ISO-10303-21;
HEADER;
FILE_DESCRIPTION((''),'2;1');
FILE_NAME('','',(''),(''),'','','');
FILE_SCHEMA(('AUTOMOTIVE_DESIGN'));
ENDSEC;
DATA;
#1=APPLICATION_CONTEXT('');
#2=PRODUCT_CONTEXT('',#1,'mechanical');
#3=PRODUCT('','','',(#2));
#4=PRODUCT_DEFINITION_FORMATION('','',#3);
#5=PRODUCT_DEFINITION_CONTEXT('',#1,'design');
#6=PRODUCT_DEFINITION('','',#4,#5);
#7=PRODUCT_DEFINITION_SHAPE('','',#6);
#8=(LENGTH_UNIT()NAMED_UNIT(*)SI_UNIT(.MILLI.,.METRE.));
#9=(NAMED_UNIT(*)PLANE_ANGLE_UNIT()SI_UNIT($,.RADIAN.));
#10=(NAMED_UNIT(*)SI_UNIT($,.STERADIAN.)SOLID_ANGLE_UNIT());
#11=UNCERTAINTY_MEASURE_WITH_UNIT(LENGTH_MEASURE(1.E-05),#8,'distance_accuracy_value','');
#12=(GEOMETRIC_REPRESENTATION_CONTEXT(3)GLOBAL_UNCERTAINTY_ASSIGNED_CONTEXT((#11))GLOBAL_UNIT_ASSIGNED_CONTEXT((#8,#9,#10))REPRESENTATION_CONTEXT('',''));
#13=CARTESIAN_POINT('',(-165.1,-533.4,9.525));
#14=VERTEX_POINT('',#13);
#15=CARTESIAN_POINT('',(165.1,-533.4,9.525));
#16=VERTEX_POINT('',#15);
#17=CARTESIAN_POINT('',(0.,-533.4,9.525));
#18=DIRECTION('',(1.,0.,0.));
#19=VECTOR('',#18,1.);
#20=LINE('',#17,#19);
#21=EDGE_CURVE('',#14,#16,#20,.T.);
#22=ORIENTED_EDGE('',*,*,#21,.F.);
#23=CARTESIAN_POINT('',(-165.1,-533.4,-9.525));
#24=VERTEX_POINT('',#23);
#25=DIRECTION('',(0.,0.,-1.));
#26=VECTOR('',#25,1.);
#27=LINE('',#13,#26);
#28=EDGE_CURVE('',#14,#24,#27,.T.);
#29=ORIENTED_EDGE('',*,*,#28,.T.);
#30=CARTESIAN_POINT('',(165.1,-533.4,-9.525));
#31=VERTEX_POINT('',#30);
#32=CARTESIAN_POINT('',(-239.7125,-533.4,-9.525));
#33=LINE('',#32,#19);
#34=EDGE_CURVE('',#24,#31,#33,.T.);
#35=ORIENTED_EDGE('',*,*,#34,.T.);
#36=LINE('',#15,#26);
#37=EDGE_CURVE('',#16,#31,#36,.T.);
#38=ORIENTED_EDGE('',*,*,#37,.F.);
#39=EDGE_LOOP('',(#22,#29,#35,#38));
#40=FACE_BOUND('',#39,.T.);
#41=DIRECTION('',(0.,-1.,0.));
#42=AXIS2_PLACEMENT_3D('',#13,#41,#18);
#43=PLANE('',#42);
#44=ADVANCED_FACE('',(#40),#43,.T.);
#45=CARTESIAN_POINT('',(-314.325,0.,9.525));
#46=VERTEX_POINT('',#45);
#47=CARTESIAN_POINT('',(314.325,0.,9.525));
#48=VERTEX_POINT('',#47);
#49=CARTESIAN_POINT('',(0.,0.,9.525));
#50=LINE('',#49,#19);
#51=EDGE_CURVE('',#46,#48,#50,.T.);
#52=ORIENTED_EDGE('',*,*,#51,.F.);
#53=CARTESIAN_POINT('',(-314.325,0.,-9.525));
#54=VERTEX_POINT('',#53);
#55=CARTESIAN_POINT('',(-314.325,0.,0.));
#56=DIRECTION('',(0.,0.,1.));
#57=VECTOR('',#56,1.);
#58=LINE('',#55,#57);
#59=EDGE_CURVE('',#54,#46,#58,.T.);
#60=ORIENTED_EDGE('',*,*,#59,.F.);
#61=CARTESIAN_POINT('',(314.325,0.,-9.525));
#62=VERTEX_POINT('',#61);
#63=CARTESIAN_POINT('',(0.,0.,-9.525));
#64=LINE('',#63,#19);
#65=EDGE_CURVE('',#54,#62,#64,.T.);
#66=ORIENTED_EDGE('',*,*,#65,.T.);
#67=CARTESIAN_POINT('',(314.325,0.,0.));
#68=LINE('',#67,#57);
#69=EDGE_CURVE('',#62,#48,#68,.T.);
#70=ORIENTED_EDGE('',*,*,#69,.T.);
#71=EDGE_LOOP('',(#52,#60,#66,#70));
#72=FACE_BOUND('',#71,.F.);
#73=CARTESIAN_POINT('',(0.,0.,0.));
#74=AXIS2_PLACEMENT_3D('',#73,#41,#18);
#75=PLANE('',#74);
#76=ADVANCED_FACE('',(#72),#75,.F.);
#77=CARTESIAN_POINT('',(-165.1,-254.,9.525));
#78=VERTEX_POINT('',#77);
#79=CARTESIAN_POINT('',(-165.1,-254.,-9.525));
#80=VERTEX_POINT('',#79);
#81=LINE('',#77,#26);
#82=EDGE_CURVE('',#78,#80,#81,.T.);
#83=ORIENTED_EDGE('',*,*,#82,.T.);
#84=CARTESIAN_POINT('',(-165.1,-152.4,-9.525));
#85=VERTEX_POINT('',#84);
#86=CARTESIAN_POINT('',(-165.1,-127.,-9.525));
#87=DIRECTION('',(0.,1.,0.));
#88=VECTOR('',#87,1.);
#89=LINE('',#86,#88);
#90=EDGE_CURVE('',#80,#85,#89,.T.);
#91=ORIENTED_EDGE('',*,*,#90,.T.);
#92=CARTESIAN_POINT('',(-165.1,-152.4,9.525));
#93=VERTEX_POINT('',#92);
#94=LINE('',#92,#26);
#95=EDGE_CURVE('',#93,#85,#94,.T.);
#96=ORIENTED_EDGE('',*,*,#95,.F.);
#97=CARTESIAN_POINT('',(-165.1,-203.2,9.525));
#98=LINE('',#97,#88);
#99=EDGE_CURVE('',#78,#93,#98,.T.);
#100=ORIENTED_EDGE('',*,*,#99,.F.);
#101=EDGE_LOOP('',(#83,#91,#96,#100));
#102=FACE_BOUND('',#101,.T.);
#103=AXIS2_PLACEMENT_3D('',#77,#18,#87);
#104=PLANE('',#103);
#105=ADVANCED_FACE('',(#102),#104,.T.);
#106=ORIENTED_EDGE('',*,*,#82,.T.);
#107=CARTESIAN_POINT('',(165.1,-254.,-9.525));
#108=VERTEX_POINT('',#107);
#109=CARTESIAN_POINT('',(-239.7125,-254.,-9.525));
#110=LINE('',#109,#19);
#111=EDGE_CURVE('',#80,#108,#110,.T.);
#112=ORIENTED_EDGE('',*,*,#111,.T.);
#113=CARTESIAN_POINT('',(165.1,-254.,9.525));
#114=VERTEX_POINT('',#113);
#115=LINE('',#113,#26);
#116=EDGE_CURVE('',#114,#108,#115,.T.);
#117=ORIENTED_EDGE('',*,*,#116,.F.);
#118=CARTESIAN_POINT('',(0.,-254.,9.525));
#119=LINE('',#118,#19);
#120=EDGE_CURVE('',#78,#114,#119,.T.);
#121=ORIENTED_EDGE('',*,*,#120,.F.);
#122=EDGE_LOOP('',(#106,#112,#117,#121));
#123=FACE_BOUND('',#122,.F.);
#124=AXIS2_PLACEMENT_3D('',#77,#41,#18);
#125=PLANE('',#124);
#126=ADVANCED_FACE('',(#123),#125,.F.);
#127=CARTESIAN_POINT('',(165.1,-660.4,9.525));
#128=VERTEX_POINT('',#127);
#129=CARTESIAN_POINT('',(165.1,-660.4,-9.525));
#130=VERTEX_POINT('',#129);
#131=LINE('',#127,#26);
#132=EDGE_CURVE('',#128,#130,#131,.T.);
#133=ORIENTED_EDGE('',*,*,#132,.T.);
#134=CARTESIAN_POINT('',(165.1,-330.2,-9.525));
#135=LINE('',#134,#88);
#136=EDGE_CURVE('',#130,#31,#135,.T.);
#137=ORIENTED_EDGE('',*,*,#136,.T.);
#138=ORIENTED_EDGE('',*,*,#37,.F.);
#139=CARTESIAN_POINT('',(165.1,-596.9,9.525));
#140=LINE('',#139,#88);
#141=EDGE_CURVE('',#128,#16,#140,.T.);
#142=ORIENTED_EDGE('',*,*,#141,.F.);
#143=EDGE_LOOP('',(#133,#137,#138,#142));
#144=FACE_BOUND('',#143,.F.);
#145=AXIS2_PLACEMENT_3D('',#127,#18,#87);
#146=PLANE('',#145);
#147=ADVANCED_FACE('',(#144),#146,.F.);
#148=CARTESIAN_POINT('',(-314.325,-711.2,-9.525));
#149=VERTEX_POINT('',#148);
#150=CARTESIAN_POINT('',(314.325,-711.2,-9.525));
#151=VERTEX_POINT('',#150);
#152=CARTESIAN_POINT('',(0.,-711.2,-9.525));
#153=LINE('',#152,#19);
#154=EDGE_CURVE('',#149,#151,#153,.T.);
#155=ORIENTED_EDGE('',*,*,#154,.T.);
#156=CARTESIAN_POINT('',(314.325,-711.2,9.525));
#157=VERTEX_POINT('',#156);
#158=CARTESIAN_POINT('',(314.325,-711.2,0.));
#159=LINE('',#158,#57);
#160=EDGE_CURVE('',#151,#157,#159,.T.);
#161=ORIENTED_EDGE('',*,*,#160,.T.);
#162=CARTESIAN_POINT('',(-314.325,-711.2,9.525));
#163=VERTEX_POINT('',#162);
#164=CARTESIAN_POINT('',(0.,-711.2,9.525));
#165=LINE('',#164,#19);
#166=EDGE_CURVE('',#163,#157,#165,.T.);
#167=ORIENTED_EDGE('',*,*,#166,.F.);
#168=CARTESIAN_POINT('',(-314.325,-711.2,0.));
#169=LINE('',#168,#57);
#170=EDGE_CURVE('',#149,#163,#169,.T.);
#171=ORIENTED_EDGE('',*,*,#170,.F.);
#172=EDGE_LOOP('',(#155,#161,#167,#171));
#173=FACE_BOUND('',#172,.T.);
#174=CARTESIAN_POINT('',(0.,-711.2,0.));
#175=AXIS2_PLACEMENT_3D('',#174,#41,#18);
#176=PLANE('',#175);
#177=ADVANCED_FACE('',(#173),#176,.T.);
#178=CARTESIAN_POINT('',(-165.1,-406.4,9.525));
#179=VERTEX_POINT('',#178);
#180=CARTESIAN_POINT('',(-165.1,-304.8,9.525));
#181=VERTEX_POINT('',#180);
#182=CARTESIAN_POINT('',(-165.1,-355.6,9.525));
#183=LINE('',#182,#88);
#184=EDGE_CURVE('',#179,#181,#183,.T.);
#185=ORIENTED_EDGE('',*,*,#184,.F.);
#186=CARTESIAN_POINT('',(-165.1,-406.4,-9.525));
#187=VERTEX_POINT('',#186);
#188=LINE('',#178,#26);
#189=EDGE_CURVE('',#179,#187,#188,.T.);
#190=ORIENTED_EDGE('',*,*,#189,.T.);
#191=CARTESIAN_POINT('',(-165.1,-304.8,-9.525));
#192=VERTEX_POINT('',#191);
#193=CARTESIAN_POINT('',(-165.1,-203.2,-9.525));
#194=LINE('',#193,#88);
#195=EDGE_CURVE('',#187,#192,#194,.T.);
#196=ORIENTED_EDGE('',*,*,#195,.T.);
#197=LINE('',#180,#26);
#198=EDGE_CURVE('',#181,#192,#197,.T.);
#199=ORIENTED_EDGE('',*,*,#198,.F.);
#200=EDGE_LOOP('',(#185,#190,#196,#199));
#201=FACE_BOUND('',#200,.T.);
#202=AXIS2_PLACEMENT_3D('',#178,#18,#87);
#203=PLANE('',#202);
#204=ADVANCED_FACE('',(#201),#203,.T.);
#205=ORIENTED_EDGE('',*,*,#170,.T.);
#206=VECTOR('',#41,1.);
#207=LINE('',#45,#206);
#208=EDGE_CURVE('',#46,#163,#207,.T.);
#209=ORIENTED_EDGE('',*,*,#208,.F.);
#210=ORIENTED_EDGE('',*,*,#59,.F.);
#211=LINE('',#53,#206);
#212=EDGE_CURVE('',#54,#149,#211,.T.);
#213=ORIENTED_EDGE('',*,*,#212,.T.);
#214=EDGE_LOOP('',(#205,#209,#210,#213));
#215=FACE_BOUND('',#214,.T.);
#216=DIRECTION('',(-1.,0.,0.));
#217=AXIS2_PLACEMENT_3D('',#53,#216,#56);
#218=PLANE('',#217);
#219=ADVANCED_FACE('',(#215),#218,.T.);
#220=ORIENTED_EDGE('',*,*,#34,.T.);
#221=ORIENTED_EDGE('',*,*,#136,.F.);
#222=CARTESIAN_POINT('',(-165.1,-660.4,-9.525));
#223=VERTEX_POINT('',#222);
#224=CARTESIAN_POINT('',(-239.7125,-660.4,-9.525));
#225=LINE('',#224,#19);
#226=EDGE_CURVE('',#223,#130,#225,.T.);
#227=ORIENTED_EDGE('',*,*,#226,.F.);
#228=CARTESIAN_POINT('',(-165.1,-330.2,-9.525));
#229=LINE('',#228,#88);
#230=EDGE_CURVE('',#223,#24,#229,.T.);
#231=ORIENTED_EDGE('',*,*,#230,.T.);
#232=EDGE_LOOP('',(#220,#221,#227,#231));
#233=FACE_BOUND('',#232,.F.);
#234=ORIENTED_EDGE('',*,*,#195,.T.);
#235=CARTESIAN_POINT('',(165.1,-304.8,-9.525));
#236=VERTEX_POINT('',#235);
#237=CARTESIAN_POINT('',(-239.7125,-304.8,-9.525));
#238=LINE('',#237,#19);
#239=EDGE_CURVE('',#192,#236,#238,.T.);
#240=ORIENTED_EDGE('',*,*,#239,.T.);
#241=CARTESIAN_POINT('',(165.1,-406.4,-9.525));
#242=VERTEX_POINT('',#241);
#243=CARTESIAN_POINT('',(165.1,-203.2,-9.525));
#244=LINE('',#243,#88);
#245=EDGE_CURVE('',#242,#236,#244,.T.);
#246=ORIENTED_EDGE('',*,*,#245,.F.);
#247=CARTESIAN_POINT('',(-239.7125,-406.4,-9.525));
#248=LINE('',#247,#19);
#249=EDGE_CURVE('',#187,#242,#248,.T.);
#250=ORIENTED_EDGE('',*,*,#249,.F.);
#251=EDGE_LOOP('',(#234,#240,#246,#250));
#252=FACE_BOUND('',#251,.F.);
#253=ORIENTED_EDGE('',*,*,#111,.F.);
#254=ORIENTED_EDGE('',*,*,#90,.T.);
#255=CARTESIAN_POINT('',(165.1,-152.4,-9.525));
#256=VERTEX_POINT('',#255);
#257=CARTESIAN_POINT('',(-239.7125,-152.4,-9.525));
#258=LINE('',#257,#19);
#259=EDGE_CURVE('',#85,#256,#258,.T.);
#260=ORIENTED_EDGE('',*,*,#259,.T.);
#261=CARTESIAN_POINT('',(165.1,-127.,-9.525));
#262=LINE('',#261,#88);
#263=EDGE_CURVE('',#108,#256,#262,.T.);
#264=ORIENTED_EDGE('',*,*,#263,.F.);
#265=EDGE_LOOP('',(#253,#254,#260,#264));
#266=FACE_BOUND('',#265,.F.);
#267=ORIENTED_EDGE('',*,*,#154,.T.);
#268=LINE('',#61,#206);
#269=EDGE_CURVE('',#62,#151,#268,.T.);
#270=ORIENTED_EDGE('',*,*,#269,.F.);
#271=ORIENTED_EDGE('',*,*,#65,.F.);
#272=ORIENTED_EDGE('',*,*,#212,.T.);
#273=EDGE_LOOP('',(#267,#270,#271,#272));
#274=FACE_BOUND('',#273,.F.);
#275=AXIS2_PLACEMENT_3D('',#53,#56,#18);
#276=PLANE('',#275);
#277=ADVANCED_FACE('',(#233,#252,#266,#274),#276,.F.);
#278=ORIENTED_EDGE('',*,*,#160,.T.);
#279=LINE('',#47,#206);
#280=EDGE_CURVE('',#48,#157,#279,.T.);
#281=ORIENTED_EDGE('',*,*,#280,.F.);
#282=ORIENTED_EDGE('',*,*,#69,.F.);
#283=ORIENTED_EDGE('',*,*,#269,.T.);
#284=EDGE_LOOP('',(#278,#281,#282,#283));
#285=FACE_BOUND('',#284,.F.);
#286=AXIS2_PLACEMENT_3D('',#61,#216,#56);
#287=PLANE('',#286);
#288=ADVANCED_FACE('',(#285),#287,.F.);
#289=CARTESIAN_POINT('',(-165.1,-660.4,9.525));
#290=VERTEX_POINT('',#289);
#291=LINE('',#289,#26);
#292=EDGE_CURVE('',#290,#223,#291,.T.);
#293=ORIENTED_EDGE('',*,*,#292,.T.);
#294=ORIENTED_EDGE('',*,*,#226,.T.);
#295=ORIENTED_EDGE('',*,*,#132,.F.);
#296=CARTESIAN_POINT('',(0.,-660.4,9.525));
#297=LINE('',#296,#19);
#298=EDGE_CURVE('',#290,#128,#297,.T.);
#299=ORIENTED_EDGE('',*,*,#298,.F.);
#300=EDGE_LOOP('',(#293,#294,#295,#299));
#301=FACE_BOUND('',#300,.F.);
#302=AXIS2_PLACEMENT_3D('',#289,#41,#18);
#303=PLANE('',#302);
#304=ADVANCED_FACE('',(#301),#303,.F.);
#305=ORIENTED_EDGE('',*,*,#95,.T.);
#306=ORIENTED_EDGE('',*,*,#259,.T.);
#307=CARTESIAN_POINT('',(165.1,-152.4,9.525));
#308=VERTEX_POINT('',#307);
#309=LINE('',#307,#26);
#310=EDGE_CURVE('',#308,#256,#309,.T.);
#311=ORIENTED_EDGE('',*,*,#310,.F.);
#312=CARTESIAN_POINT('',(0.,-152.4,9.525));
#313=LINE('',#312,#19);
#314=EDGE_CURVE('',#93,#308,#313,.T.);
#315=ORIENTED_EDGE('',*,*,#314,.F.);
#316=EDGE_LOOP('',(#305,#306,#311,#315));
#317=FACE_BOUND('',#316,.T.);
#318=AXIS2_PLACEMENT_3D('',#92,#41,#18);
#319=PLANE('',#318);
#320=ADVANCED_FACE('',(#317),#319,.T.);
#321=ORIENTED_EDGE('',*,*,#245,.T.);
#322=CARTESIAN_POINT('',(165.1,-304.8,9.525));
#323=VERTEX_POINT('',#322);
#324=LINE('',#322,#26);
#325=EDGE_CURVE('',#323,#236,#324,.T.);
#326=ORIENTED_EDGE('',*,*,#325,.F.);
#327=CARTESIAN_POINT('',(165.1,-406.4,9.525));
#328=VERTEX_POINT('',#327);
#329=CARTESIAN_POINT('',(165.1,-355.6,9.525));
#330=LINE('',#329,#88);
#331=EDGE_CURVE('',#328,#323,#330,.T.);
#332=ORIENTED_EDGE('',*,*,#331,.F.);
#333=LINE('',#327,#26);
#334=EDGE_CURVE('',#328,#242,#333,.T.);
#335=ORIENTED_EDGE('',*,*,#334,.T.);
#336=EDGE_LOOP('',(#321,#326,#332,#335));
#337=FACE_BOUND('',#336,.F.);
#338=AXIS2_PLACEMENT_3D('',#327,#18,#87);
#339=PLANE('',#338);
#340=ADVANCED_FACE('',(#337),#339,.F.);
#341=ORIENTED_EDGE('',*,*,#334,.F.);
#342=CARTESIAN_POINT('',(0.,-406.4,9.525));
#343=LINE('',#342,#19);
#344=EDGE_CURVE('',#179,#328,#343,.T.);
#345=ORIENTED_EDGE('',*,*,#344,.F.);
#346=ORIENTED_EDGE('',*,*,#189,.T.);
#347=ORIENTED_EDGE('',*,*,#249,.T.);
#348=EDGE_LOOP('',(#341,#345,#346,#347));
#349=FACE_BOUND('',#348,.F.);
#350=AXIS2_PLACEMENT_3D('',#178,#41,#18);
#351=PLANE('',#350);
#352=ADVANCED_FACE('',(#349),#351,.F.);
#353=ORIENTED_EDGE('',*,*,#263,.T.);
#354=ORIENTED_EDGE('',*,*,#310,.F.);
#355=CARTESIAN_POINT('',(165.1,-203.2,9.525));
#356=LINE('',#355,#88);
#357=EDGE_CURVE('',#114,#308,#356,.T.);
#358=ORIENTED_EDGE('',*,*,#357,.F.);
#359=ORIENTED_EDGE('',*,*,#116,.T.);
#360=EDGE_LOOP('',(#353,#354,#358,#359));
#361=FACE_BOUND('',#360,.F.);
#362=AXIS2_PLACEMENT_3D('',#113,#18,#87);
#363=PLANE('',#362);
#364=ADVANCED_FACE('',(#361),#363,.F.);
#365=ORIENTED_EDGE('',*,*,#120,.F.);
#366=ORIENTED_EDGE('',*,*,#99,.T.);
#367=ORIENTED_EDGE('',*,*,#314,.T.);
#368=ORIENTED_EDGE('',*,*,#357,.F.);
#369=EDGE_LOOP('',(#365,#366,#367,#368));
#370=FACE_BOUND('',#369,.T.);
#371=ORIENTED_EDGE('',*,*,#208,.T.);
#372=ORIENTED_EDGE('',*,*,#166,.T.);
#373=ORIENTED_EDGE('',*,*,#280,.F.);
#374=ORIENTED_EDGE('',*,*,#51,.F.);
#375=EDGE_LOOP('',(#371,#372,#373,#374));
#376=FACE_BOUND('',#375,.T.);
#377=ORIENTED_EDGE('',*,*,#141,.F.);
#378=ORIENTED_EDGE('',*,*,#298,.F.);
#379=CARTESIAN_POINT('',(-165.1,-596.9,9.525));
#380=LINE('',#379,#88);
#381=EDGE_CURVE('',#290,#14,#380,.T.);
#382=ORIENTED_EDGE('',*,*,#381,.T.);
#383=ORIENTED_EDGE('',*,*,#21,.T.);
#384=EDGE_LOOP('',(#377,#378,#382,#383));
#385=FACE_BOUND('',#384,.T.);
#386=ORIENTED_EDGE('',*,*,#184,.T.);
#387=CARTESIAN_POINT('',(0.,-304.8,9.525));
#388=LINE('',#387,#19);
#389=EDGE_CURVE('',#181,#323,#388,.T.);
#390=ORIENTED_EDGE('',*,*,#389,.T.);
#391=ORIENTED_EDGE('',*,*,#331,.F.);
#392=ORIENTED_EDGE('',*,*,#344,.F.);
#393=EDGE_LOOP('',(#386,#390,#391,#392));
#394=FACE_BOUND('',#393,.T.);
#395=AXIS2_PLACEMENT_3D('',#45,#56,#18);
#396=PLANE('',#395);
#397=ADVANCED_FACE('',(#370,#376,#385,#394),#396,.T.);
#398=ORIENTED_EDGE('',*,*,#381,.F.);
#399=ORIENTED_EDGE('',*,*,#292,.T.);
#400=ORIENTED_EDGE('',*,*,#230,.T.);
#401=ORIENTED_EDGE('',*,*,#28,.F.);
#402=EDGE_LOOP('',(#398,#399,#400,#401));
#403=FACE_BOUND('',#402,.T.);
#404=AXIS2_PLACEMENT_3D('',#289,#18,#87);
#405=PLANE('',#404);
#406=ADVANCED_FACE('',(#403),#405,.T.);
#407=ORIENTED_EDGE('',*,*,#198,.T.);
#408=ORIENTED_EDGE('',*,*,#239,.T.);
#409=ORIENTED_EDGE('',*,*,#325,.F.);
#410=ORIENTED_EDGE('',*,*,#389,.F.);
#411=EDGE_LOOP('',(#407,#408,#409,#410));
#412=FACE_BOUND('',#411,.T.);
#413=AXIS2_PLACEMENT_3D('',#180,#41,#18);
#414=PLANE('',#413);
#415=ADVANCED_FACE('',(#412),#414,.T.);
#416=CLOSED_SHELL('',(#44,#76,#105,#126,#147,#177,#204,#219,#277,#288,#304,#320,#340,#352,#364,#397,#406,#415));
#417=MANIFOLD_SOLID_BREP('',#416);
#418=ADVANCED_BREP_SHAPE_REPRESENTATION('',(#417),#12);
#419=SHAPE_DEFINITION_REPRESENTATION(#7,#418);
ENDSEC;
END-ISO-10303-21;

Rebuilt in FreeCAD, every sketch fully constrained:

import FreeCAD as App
import Part
import Sketcher
from FreeCAD import Vector
Q = App.Units.Quantity


def add_polygon(sketch, points):
    """Adds a closed chain of lines whose ends are joined by coincident constraints."""
    first, n = sketch.GeometryCount, len(points)
    for a, b in zip(points, points[1:] + points[:1]):
        sketch.addGeometry(Part.LineSegment(App.Vector(*a, 0), App.Vector(*b, 0)), False)
    for i in range(n):
        sketch.addConstraint(Sketcher.Constraint("Coincident", first + i, 2, first + (i + 1) % n, 1))

doc = App.newDocument("Part")
body = doc.addObject("PartDesign::Body", "Body")

# Sketch on XZ plane
sketch1 = body.newObject("Sketcher::SketchObject", "Sketch")
sketch1.AttachmentSupport = (doc.getObject("XZ_Plane"), [""])
sketch1.MapMode = "FlatFace"
add_polygon(sketch1, [(-314.325, 9.525), (-314.325, -9.525), (314.325, -9.525), (314.325, 9.525)])  # lines 0-3
sketch1.addConstraint([
    Sketcher.Constraint("Vertical", 0),
    Sketcher.Constraint("Horizontal", 1),
    Sketcher.Constraint("Vertical", 2),
    Sketcher.Constraint("Horizontal", 3),
    Sketcher.Constraint("Symmetric", 0, 2, 2, 2, -1, 1),
    Sketcher.Constraint("DistanceX", 1, 1, 1, 2, Q("24.75 in")),
    Sketcher.Constraint("DistanceY", 0, 2, 0, 1, Q("0.75 in")),
])
pad1 = body.newObject("PartDesign::Pad", "Pad")
pad1.Profile = sketch1
pad1.Length = Q("28 in")

# Sketch on XY plane
sketch2 = body.newObject("Sketcher::SketchObject", "Sketch001")
sketch2.AttachmentSupport = (doc.getObject("XY_Plane"), [""])
sketch2.MapMode = "FlatFace"
sketch2.AttachmentOffset = App.Placement(Vector(0, 0, 0.375 * 25.4), App.Rotation())
add_polygon(sketch2, [(-165.1, -152.4), (-165.1, -254), (165.1, -254), (165.1, -152.4)])  # lines 0-3
add_polygon(sketch2, [(-165.1, -304.8), (-165.1, -406.4), (165.1, -406.4), (165.1, -304.8)])  # lines 4-7
add_polygon(sketch2, [(-165.1, -533.4), (-165.1, -660.4), (165.1, -660.4), (165.1, -533.4)])  # lines 8-11
sketch2.addConstraint([
    Sketcher.Constraint("Vertical", 0),
    Sketcher.Constraint("Horizontal", 1),
    Sketcher.Constraint("Vertical", 2),
    Sketcher.Constraint("Horizontal", 3),
    Sketcher.Constraint("Vertical", 4),
    Sketcher.Constraint("Horizontal", 5),
    Sketcher.Constraint("Vertical", 6),
    Sketcher.Constraint("Horizontal", 7),
    Sketcher.Constraint("Vertical", 8),
    Sketcher.Constraint("Horizontal", 9),
    Sketcher.Constraint("Vertical", 10),
    Sketcher.Constraint("Horizontal", 11),
    Sketcher.Constraint("Vertical", 3, 2, 4, 2),
    Sketcher.Constraint("Vertical", 2, 2, 5, 2),
    Sketcher.Constraint("Vertical", 7, 2, 8, 2),
    Sketcher.Constraint("Vertical", 6, 2, 9, 2),
    Sketcher.Constraint("Equal", 2, 4),
    Sketcher.Constraint("DistanceX", 1, 1, 1, 2, Q("13 in")),
    Sketcher.Constraint("DistanceY", 0, 2, 0, 1, Q("4 in")),
    Sketcher.Constraint("DistanceY", 8, 2, 8, 1, Q("5 in")),
    Sketcher.Constraint("DistanceY", 0, 2, -1, 1, Q("10 in")),
    Sketcher.Constraint("DistanceY", 4, 2, -1, 1, Q("16 in")),
    Sketcher.Constraint("DistanceY", 8, 2, -1, 1, Q("26 in")),
    Sketcher.Constraint("DistanceX", 0, 2, -1, 1, Q("6.5 in")),
])
pocket1 = body.newObject("PartDesign::Pocket", "Pocket")
pocket1.Profile = sketch2
pocket1.Length = Q("1 in")

doc.recompute()
